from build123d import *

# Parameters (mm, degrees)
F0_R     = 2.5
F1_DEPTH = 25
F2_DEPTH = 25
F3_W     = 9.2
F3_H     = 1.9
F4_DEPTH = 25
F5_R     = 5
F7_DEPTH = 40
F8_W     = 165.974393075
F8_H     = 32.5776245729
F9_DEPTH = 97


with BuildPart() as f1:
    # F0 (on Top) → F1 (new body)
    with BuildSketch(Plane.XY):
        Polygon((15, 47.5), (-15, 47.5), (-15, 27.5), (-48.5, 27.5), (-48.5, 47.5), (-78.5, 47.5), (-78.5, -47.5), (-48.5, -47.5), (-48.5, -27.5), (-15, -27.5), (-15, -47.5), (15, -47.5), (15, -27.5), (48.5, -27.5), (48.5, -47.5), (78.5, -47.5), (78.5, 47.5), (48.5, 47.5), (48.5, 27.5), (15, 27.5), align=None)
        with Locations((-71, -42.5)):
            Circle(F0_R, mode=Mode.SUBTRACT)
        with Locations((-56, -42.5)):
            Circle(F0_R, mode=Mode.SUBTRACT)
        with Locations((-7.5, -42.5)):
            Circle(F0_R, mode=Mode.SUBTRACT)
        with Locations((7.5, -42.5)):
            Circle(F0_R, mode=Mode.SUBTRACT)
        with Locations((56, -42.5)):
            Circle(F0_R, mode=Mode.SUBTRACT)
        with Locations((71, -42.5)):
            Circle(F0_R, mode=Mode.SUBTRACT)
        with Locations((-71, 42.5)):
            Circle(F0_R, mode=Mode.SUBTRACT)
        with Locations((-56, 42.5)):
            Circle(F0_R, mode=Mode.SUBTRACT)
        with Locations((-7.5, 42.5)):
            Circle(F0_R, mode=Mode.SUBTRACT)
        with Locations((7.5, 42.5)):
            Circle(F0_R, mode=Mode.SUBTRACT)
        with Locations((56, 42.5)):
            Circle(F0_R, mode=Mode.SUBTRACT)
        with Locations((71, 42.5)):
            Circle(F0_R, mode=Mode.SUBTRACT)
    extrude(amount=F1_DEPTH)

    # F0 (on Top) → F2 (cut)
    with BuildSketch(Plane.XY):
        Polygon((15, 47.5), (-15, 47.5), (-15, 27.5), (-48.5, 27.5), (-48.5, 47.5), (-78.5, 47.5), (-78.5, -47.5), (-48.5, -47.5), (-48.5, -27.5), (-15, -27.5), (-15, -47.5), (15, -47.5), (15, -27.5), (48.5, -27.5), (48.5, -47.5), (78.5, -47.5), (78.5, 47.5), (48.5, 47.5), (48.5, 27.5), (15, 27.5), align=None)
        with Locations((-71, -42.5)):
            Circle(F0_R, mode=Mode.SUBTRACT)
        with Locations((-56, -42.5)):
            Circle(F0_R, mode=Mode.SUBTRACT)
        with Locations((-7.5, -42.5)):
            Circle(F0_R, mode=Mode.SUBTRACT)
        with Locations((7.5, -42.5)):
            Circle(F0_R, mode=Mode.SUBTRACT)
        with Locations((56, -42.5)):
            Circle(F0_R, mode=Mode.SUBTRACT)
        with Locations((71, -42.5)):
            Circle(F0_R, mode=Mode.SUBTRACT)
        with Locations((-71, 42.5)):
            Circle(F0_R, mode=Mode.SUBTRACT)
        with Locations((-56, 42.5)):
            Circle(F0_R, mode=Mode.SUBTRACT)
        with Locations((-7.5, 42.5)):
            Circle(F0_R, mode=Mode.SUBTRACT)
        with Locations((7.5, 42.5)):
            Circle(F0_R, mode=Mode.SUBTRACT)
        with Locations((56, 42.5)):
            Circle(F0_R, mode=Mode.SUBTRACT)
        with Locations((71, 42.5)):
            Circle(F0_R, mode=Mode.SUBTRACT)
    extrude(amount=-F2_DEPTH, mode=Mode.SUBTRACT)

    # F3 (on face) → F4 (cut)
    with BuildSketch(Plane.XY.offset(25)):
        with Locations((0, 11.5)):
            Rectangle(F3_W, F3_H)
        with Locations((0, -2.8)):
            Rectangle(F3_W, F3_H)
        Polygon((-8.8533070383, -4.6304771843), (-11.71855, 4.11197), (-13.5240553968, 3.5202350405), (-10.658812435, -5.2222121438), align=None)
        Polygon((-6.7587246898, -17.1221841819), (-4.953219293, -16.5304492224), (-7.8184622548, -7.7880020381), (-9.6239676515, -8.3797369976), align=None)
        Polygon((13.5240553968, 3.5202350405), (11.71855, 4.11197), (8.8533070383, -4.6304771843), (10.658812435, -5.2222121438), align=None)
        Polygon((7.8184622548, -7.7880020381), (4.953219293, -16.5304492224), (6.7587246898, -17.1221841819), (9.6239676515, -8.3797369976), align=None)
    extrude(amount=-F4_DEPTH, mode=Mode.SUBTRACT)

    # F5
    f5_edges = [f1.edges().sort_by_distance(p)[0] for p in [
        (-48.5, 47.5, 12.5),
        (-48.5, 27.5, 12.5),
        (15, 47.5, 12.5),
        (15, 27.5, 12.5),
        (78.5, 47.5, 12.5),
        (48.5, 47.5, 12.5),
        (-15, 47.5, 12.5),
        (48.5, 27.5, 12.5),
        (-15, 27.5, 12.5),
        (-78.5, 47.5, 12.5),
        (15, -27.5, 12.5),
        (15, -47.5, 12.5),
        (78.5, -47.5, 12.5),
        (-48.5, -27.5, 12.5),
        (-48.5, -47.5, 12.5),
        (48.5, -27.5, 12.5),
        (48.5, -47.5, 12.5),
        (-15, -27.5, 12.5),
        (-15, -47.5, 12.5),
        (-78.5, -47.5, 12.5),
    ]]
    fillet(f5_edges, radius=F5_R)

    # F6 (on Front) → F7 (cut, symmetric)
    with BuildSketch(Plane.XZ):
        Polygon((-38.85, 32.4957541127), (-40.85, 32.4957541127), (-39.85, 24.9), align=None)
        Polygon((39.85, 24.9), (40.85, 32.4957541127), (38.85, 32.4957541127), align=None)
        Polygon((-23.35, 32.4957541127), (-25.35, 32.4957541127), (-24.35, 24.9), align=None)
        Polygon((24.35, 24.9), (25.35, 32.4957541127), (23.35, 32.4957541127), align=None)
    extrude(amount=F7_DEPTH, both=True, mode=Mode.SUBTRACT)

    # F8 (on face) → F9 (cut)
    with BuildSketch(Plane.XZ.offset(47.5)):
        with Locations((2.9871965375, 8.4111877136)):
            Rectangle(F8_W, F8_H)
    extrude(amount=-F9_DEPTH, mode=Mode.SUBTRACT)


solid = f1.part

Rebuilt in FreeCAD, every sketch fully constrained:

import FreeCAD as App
import Part
import Sketcher
from FreeCAD import Vector
Q = App.Units.Quantity


def edges_at(feature, points):
    """Names of the edges that pass closest to the given points."""
    edges = feature.Shape.Edges
    near = lambda p: min(range(len(edges)), key=lambda i: edges[i].distToShape(Part.Vertex(*p))[0])
    return sorted({f"Edge{near(p) + 1}" for p in points})

doc = App.newDocument("Part")
body = doc.addObject("PartDesign::Body", "Body")

# Sketch on XY plane
sketch1 = body.newObject("Sketcher::SketchObject", "Sketch")
sketch1.AttachmentSupport = (doc.getObject("XY_Plane"), [""])
sketch1.MapMode = "FlatFace"
sketch1.addGeometry(Part.LineSegment(Vector(15, 47.5, 0), Vector(-15, 47.5, 0)), False)
sketch1.addGeometry(Part.LineSegment(Vector(-15, 47.5, 0), Vector(-15, 27.5, 0)), False)
sketch1.addGeometry(Part.LineSegment(Vector(-15, 27.5, 0), Vector(-48.5, 27.5, 0)), False)
sketch1.addGeometry(Part.LineSegment(Vector(-48.5, 27.5, 0), Vector(-48.5, 47.5, 0)), False)
sketch1.addGeometry(Part.LineSegment(Vector(-48.5, 47.5, 0), Vector(-78.5, 47.5, 0)), False)
sketch1.addGeometry(Part.LineSegment(Vector(-78.5, 47.5, 0), Vector(-78.5, -47.5, 0)), False)
sketch1.addGeometry(Part.LineSegment(Vector(-78.5, -47.5, 0), Vector(-48.5, -47.5, 0)), False)
sketch1.addGeometry(Part.LineSegment(Vector(-48.5, -47.5, 0), Vector(-48.5, -27.5, 0)), False)
sketch1.addGeometry(Part.LineSegment(Vector(-48.5, -27.5, 0), Vector(-15, -27.5, 0)), False)
sketch1.addGeometry(Part.LineSegment(Vector(-15, -27.5, 0), Vector(-15, -47.5, 0)), False)
sketch1.addGeometry(Part.LineSegment(Vector(-15, -47.5, 0), Vector(15, -47.5, 0)), False)
sketch1.addGeometry(Part.LineSegment(Vector(15, -47.5, 0), Vector(15, -27.5, 0)), False)
sketch1.addGeometry(Part.LineSegment(Vector(15, -27.5, 0), Vector(48.5, -27.5, 0)), False)
sketch1.addGeometry(Part.LineSegment(Vector(48.5, -27.5, 0), Vector(48.5, -47.5, 0)), False)
sketch1.addGeometry(Part.LineSegment(Vector(48.5, -47.5, 0), Vector(78.5, -47.5, 0)), False)
sketch1.addGeometry(Part.LineSegment(Vector(78.5, -47.5, 0), Vector(78.5, 47.5, 0)), False)
sketch1.addGeometry(Part.LineSegment(Vector(78.5, 47.5, 0), Vector(48.5, 47.5, 0)), False)
sketch1.addGeometry(Part.LineSegment(Vector(48.5, 47.5, 0), Vector(48.5, 27.5, 0)), False)
sketch1.addGeometry(Part.LineSegment(Vector(48.5, 27.5, 0), Vector(15, 27.5, 0)), False)
sketch1.addGeometry(Part.LineSegment(Vector(15, 27.5, 0), Vector(15, 47.5, 0)), False)
sketch1.addGeometry(Part.Circle(Vector(-71, -42.5, 0), Vector(0, 0, 1), 2.5), False)
sketch1.addGeometry(Part.Circle(Vector(-56, -42.5, 0), Vector(0, 0, 1), 2.5), False)
sketch1.addGeometry(Part.Circle(Vector(-7.5, -42.5, 0), Vector(0, 0, 1), 2.5), False)
sketch1.addGeometry(Part.Circle(Vector(7.5, -42.5, 0), Vector(0, 0, 1), 2.5), False)
sketch1.addGeometry(Part.Circle(Vector(56, -42.5, 0), Vector(0, 0, 1), 2.5), False)
sketch1.addGeometry(Part.Circle(Vector(71, -42.5, 0), Vector(0, 0, 1), 2.5), False)
sketch1.addGeometry(Part.Circle(Vector(-71, 42.5, 0), Vector(0, 0, 1), 2.5), False)
sketch1.addGeometry(Part.Circle(Vector(-56, 42.5, 0), Vector(0, 0, 1), 2.5), False)
sketch1.addGeometry(Part.Circle(Vector(-7.5, 42.5, 0), Vector(0, 0, 1), 2.5), False)
sketch1.addGeometry(Part.Circle(Vector(7.5, 42.5, 0), Vector(0, 0, 1), 2.5), False)
sketch1.addGeometry(Part.Circle(Vector(56, 42.5, 0), Vector(0, 0, 1), 2.5), False)
sketch1.addGeometry(Part.Circle(Vector(71, 42.5, 0), Vector(0, 0, 1), 2.5), False)
sketch1.addConstraint(Sketcher.Constraint("Coincident", 0, 2, 1, 1))
sketch1.addConstraint(Sketcher.Constraint("Coincident", 1, 2, 2, 1))
sketch1.addConstraint(Sketcher.Constraint("Coincident", 2, 2, 3, 1))
sketch1.addConstraint(Sketcher.Constraint("Coincident", 3, 2, 4, 1))
sketch1.addConstraint(Sketcher.Constraint("Coincident", 4, 2, 5, 1))
sketch1.addConstraint(Sketcher.Constraint("Coincident", 5, 2, 6, 1))
sketch1.addConstraint(Sketcher.Constraint("Coincident", 6, 2, 7, 1))
sketch1.addConstraint(Sketcher.Constraint("Coincident", 7, 2, 8, 1))
sketch1.addConstraint(Sketcher.Constraint("Coincident", 8, 2, 9, 1))
sketch1.addConstraint(Sketcher.Constraint("Coincident", 9, 2, 10, 1))
sketch1.addConstraint(Sketcher.Constraint("Coincident", 10, 2, 11, 1))
sketch1.addConstraint(Sketcher.Constraint("Coincident", 11, 2, 12, 1))
sketch1.addConstraint(Sketcher.Constraint("Coincident", 12, 2, 13, 1))
sketch1.addConstraint(Sketcher.Constraint("Coincident", 13, 2, 14, 1))
sketch1.addConstraint(Sketcher.Constraint("Coincident", 14, 2, 15, 1))
sketch1.addConstraint(Sketcher.Constraint("Coincident", 15, 2, 16, 1))
sketch1.addConstraint(Sketcher.Constraint("Coincident", 16, 2, 17, 1))
sketch1.addConstraint(Sketcher.Constraint("Coincident", 17, 2, 18, 1))
sketch1.addConstraint(Sketcher.Constraint("Coincident", 18, 2, 19, 1))
sketch1.addConstraint(Sketcher.Constraint("Coincident", 19, 2, 0, 1))
sketch1.addConstraint(Sketcher.Constraint("Horizontal", 0))
sketch1.addConstraint(Sketcher.Constraint("Vertical", 1))
sketch1.addConstraint(Sketcher.Constraint("Horizontal", 2))
sketch1.addConstraint(Sketcher.Constraint("Vertical", 3))
sketch1.addConstraint(Sketcher.Constraint("Horizontal", 4))
sketch1.addConstraint(Sketcher.Constraint("Vertical", 5))
sketch1.addConstraint(Sketcher.Constraint("Horizontal", 6))
sketch1.addConstraint(Sketcher.Constraint("Vertical", 7))
sketch1.addConstraint(Sketcher.Constraint("Horizontal", 8))
sketch1.addConstraint(Sketcher.Constraint("Vertical", 9))
sketch1.addConstraint(Sketcher.Constraint("Horizontal", 10))
sketch1.addConstraint(Sketcher.Constraint("Vertical", 11))
sketch1.addConstraint(Sketcher.Constraint("Horizontal", 12))
sketch1.addConstraint(Sketcher.Constraint("Vertical", 13))
sketch1.addConstraint(Sketcher.Constraint("Horizontal", 14))
sketch1.addConstraint(Sketcher.Constraint("Vertical", 15))
sketch1.addConstraint(Sketcher.Constraint("Horizontal", 16))
sketch1.addConstraint(Sketcher.Constraint("Vertical", 17))
sketch1.addConstraint(Sketcher.Constraint("Horizontal", 18))
sketch1.addConstraint(Sketcher.Constraint("Vertical", 19))
sketch1.addConstraint(Sketcher.Constraint("Equal", 20, 21))
sketch1.addConstraint(Sketcher.Constraint("Equal", 21, 22))
sketch1.addConstraint(Sketcher.Constraint("Equal", 22, 23))
sketch1.addConstraint(Sketcher.Constraint("Equal", 23, 24))
sketch1.addConstraint(Sketcher.Constraint("Equal", 24, 25))
sketch1.addConstraint(Sketcher.Constraint("Equal", 25, 26))
sketch1.addConstraint(Sketcher.Constraint("Equal", 26, 27))
sketch1.addConstraint(Sketcher.Constraint("Equal", 27, 28))
sketch1.addConstraint(Sketcher.Constraint("Equal", 28, 29))
sketch1.addConstraint(Sketcher.Constraint("Equal", 29, 30))
sketch1.addConstraint(Sketcher.Constraint("Equal", 30, 31))
sketch1.addConstraint(Sketcher.Constraint("Symmetric", 25, 3, 26, 3, -1, 1))
sketch1.addConstraint(Sketcher.Constraint("Symmetric", 24, 3, 27, 3, -1, 1))
sketch1.addConstraint(Sketcher.Constraint("Symmetric", 23, 3, 28, 3, -1, 1))
sketch1.addConstraint(Sketcher.Constraint("Symmetric", 22, 3, 29, 3, -1, 1))
sketch1.addConstraint(Sketcher.Constraint("Symmetric", 21, 3, 30, 3, -1, 1))
sketch1.addConstraint(Sketcher.Constraint("Symmetric", 20, 3, 31, 3, -1, 1))
sketch1.addConstraint(Sketcher.Constraint("Symmetric", 0, 2, 10, 2, -1, 1))
sketch1.addConstraint(Sketcher.Constraint("Symmetric", 2, 2, 12, 2, -1, 1))
sketch1.addConstraint(Sketcher.Constraint("Symmetric", 4, 2, 14, 2, -1, 1))
sketch1.addConstraint(Sketcher.Constraint("Symmetric", 6, 2, 16, 2, -1, 1))
sketch1.addConstraint(Sketcher.Constraint("Symmetric", 8, 2, 18, 2, -1, 1))
sketch1.addConstraint(Sketcher.Constraint("Symmetric", 22, 3, 23, 3, -2))
sketch1.addConstraint(Sketcher.Constraint("Symmetric", 21, 3, 24, 3, -2))
sketch1.addConstraint(Sketcher.Constraint("Symmetric", 20, 3, 25, 3, -2))
sketch1.addConstraint(Sketcher.Constraint("Symmetric", 8, 2, 11, 2, -2))
sketch1.addConstraint(Sketcher.Constraint("Symmetric", 6, 2, 13, 2, -2))
sketch1.addConstraint(Sketcher.Constraint("Horizontal", 20, 3, 21, 3))
sketch1.addConstraint(Sketcher.Constraint("Horizontal", 21, 3, 22, 3))
sketch1.addConstraint(Sketcher.Constraint("Horizontal", 0, 2, 3, 2))
sketch1.addConstraint(Sketcher.Constraint("Equal", 0, 4))
sketch1.addConstraint(Sketcher.Constraint("Diameter", 20, 5.0))
sketch1.addConstraint(Sketcher.Constraint("DistanceX", 0, 2, 0, 1, 30.0))
sketch1.addConstraint(Sketcher.Constraint("DistanceY", 1, 2, 1, 1, 20.0))
sketch1.addConstraint(Sketcher.Constraint("DistanceY", 5, 2, 5, 1, 95.0))
sketch1.addConstraint(Sketcher.Constraint("DistanceX", 2, 2, 2, 1, 33.5))
sketch1.addConstraint(Sketcher.Constraint("DistanceX", 20, 3, -1, 1, 71.0))
sketch1.addConstraint(Sketcher.Constraint("DistanceX", 21, 3, -1, 1, 56.0))
sketch1.addConstraint(Sketcher.Constraint("DistanceX", 22, 3, 23, 3, 15.0))
sketch1.addConstraint(Sketcher.Constraint("DistanceY", 20, 3, 26, 3, 85.0))
pad1 = body.newObject("PartDesign::Pad", "Pad")
pad1.Profile = sketch1
pad1.Length = 25

# Sketch on XY plane
sketch2 = body.newObject("Sketcher::SketchObject", "Sketch001")
sketch2.AttachmentSupport = (doc.getObject("XY_Plane"), [""])
sketch2.MapMode = "FlatFace"
sketch2.addGeometry(Part.LineSegment(Vector(15, 47.5, 0), Vector(-15, 47.5, 0)), False)
sketch2.addGeometry(Part.LineSegment(Vector(-15, 47.5, 0), Vector(-15, 27.5, 0)), False)
sketch2.addGeometry(Part.LineSegment(Vector(-15, 27.5, 0), Vector(-48.5, 27.5, 0)), False)
sketch2.addGeometry(Part.LineSegment(Vector(-48.5, 27.5, 0), Vector(-48.5, 47.5, 0)), False)
sketch2.addGeometry(Part.LineSegment(Vector(-48.5, 47.5, 0), Vector(-78.5, 47.5, 0)), False)
sketch2.addGeometry(Part.LineSegment(Vector(-78.5, 47.5, 0), Vector(-78.5, -47.5, 0)), False)
sketch2.addGeometry(Part.LineSegment(Vector(-78.5, -47.5, 0), Vector(-48.5, -47.5, 0)), False)
sketch2.addGeometry(Part.LineSegment(Vector(-48.5, -47.5, 0), Vector(-48.5, -27.5, 0)), False)
sketch2.addGeometry(Part.LineSegment(Vector(-48.5, -27.5, 0), Vector(-15, -27.5, 0)), False)
sketch2.addGeometry(Part.LineSegment(Vector(-15, -27.5, 0), Vector(-15, -47.5, 0)), False)
sketch2.addGeometry(Part.LineSegment(Vector(-15, -47.5, 0), Vector(15, -47.5, 0)), False)
sketch2.addGeometry(Part.LineSegment(Vector(15, -47.5, 0), Vector(15, -27.5, 0)), False)
sketch2.addGeometry(Part.LineSegment(Vector(15, -27.5, 0), Vector(48.5, -27.5, 0)), False)
sketch2.addGeometry(Part.LineSegment(Vector(48.5, -27.5, 0), Vector(48.5, -47.5, 0)), False)
sketch2.addGeometry(Part.LineSegment(Vector(48.5, -47.5, 0), Vector(78.5, -47.5, 0)), False)
sketch2.addGeometry(Part.LineSegment(Vector(78.5, -47.5, 0), Vector(78.5, 47.5, 0)), False)
sketch2.addGeometry(Part.LineSegment(Vector(78.5, 47.5, 0), Vector(48.5, 47.5, 0)), False)
sketch2.addGeometry(Part.LineSegment(Vector(48.5, 47.5, 0), Vector(48.5, 27.5, 0)), False)
sketch2.addGeometry(Part.LineSegment(Vector(48.5, 27.5, 0), Vector(15, 27.5, 0)), False)
sketch2.addGeometry(Part.LineSegment(Vector(15, 27.5, 0), Vector(15, 47.5, 0)), False)
sketch2.addGeometry(Part.Circle(Vector(-71, -42.5, 0), Vector(0, 0, 1), 2.5), False)
sketch2.addGeometry(Part.Circle(Vector(-56, -42.5, 0), Vector(0, 0, 1), 2.5), False)
sketch2.addGeometry(Part.Circle(Vector(-7.5, -42.5, 0), Vector(0, 0, 1), 2.5), False)
sketch2.addGeometry(Part.Circle(Vector(7.5, -42.5, 0), Vector(0, 0, 1), 2.5), False)
sketch2.addGeometry(Part.Circle(Vector(56, -42.5, 0), Vector(0, 0, 1), 2.5), False)
sketch2.addGeometry(Part.Circle(Vector(71, -42.5, 0), Vector(0, 0, 1), 2.5), False)
sketch2.addGeometry(Part.Circle(Vector(-71, 42.5, 0), Vector(0, 0, 1), 2.5), False)
sketch2.addGeometry(Part.Circle(Vector(-56, 42.5, 0), Vector(0, 0, 1), 2.5), False)
sketch2.addGeometry(Part.Circle(Vector(-7.5, 42.5, 0), Vector(0, 0, 1), 2.5), False)
sketch2.addGeometry(Part.Circle(Vector(7.5, 42.5, 0), Vector(0, 0, 1), 2.5), False)
sketch2.addGeometry(Part.Circle(Vector(56, 42.5, 0), Vector(0, 0, 1), 2.5), False)
sketch2.addGeometry(Part.Circle(Vector(71, 42.5, 0), Vector(0, 0, 1), 2.5), False)
sketch2.addConstraint(Sketcher.Constraint("Coincident", 0, 2, 1, 1))
sketch2.addConstraint(Sketcher.Constraint("Coincident", 1, 2, 2, 1))
sketch2.addConstraint(Sketcher.Constraint("Coincident", 2, 2, 3, 1))
sketch2.addConstraint(Sketcher.Constraint("Coincident", 3, 2, 4, 1))
sketch2.addConstraint(Sketcher.Constraint("Coincident", 4, 2, 5, 1))
sketch2.addConstraint(Sketcher.Constraint("Coincident", 5, 2, 6, 1))
sketch2.addConstraint(Sketcher.Constraint("Coincident", 6, 2, 7, 1))
sketch2.addConstraint(Sketcher.Constraint("Coincident", 7, 2, 8, 1))
sketch2.addConstraint(Sketcher.Constraint("Coincident", 8, 2, 9, 1))
sketch2.addConstraint(Sketcher.Constraint("Coincident", 9, 2, 10, 1))
sketch2.addConstraint(Sketcher.Constraint("Coincident", 10, 2, 11, 1))
sketch2.addConstraint(Sketcher.Constraint("Coincident", 11, 2, 12, 1))
sketch2.addConstraint(Sketcher.Constraint("Coincident", 12, 2, 13, 1))
sketch2.addConstraint(Sketcher.Constraint("Coincident", 13, 2, 14, 1))
sketch2.addConstraint(Sketcher.Constraint("Coincident", 14, 2, 15, 1))
sketch2.addConstraint(Sketcher.Constraint("Coincident", 15, 2, 16, 1))
sketch2.addConstraint(Sketcher.Constraint("Coincident", 16, 2, 17, 1))
sketch2.addConstraint(Sketcher.Constraint("Coincident", 17, 2, 18, 1))
sketch2.addConstraint(Sketcher.Constraint("Coincident", 18, 2, 19, 1))
sketch2.addConstraint(Sketcher.Constraint("Coincident", 19, 2, 0, 1))
sketch2.addConstraint(Sketcher.Constraint("Horizontal", 0))
sketch2.addConstraint(Sketcher.Constraint("Vertical", 1))
sketch2.addConstraint(Sketcher.Constraint("Horizontal", 2))
sketch2.addConstraint(Sketcher.Constraint("Vertical", 3))
sketch2.addConstraint(Sketcher.Constraint("Horizontal", 4))
sketch2.addConstraint(Sketcher.Constraint("Vertical", 5))
sketch2.addConstraint(Sketcher.Constraint("Horizontal", 6))
sketch2.addConstraint(Sketcher.Constraint("Vertical", 7))
sketch2.addConstraint(Sketcher.Constraint("Horizontal", 8))
sketch2.addConstraint(Sketcher.Constraint("Vertical", 9))
sketch2.addConstraint(Sketcher.Constraint("Horizontal", 10))
sketch2.addConstraint(Sketcher.Constraint("Vertical", 11))
sketch2.addConstraint(Sketcher.Constraint("Horizontal", 12))
sketch2.addConstraint(Sketcher.Constraint("Vertical", 13))
sketch2.addConstraint(Sketcher.Constraint("Horizontal", 14))
sketch2.addConstraint(Sketcher.Constraint("Vertical", 15))
sketch2.addConstraint(Sketcher.Constraint("Horizontal", 16))
sketch2.addConstraint(Sketcher.Constraint("Vertical", 17))
sketch2.addConstraint(Sketcher.Constraint("Horizontal", 18))
sketch2.addConstraint(Sketcher.Constraint("Vertical", 19))
sketch2.addConstraint(Sketcher.Constraint("Equal", 20, 21))
sketch2.addConstraint(Sketcher.Constraint("Equal", 21, 22))
sketch2.addConstraint(Sketcher.Constraint("Equal", 22, 23))
sketch2.addConstraint(Sketcher.Constraint("Equal", 23, 24))
sketch2.addConstraint(Sketcher.Constraint("Equal", 24, 25))
sketch2.addConstraint(Sketcher.Constraint("Equal", 25, 26))
sketch2.addConstraint(Sketcher.Constraint("Equal", 26, 27))
sketch2.addConstraint(Sketcher.Constraint("Equal", 27, 28))
sketch2.addConstraint(Sketcher.Constraint("Equal", 28, 29))
sketch2.addConstraint(Sketcher.Constraint("Equal", 29, 30))
sketch2.addConstraint(Sketcher.Constraint("Equal", 30, 31))
sketch2.addConstraint(Sketcher.Constraint("Symmetric", 25, 3, 26, 3, -1, 1))
sketch2.addConstraint(Sketcher.Constraint("Symmetric", 24, 3, 27, 3, -1, 1))
sketch2.addConstraint(Sketcher.Constraint("Symmetric", 23, 3, 28, 3, -1, 1))
sketch2.addConstraint(Sketcher.Constraint("Symmetric", 22, 3, 29, 3, -1, 1))
sketch2.addConstraint(Sketcher.Constraint("Symmetric", 21, 3, 30, 3, -1, 1))
sketch2.addConstraint(Sketcher.Constraint("Symmetric", 20, 3, 31, 3, -1, 1))
sketch2.addConstraint(Sketcher.Constraint("Symmetric", 0, 2, 10, 2, -1, 1))
sketch2.addConstraint(Sketcher.Constraint("Symmetric", 2, 2, 12, 2, -1, 1))
sketch2.addConstraint(Sketcher.Constraint("Symmetric", 4, 2, 14, 2, -1, 1))
sketch2.addConstraint(Sketcher.Constraint("Symmetric", 6, 2, 16, 2, -1, 1))
sketch2.addConstraint(Sketcher.Constraint("Symmetric", 8, 2, 18, 2, -1, 1))
sketch2.addConstraint(Sketcher.Constraint("Symmetric", 22, 3, 23, 3, -2))
sketch2.addConstraint(Sketcher.Constraint("Symmetric", 21, 3, 24, 3, -2))
sketch2.addConstraint(Sketcher.Constraint("Symmetric", 20, 3, 25, 3, -2))
sketch2.addConstraint(Sketcher.Constraint("Symmetric", 8, 2, 11, 2, -2))
sketch2.addConstraint(Sketcher.Constraint("Symmetric", 6, 2, 13, 2, -2))
sketch2.addConstraint(Sketcher.Constraint("Horizontal", 20, 3, 21, 3))
sketch2.addConstraint(Sketcher.Constraint("Horizontal", 21, 3, 22, 3))
sketch2.addConstraint(Sketcher.Constraint("Horizontal", 0, 2, 3, 2))
sketch2.addConstraint(Sketcher.Constraint("Equal", 0, 4))
sketch2.addConstraint(Sketcher.Constraint("Diameter", 20, 5.0))
sketch2.addConstraint(Sketcher.Constraint("DistanceX", 0, 2, 0, 1, 30.0))
sketch2.addConstraint(Sketcher.Constraint("DistanceY", 1, 2, 1, 1, 20.0))
sketch2.addConstraint(Sketcher.Constraint("DistanceY", 5, 2, 5, 1, 95.0))
sketch2.addConstraint(Sketcher.Constraint("DistanceX", 2, 2, 2, 1, 33.5))
sketch2.addConstraint(Sketcher.Constraint("DistanceX", 20, 3, -1, 1, 71.0))
sketch2.addConstraint(Sketcher.Constraint("DistanceX", 21, 3, -1, 1, 56.0))
sketch2.addConstraint(Sketcher.Constraint("DistanceX", 22, 3, 23, 3, 15.0))
sketch2.addConstraint(Sketcher.Constraint("DistanceY", 20, 3, 26, 3, 85.0))
pocket1 = body.newObject("PartDesign::Pocket", "Pocket")
pocket1.Profile = sketch2
pocket1.Length = 25

# Sketch on XY plane
sketch3 = body.newObject("Sketcher::SketchObject", "Sketch002")
sketch3.AttachmentSupport = (doc.getObject("XY_Plane"), [""])
sketch3.MapMode = "FlatFace"
sketch3.AttachmentOffset = App.Placement(Vector(0, 0, 25), App.Rotation())
sketch3.addGeometry(Part.LineSegment(Vector(-4.6, 12.4, 0), Vector(-4.6, 10.6, 0)), False)
sketch3.addGeometry(Part.LineSegment(Vector(-4.6, 10.6, 0), Vector(4.6, 10.6, 0)), False)
sketch3.addGeometry(Part.LineSegment(Vector(4.6, 10.6, 0), Vector(4.6, 12.4, 0)), False)
sketch3.addGeometry(Part.LineSegment(Vector(4.6, 12.4, 0), Vector(-4.6, 12.4, 0)), False)
sketch3.addGeometry(Part.LineSegment(Vector(-4.6, -1.9, 0), Vector(-4.6, -3.8, 0)), False)
sketch3.addGeometry(Part.LineSegment(Vector(-4.6, -3.8, 0), Vector(4.6, -3.8, 0)), False)
sketch3.addGeometry(Part.LineSegment(Vector(4.6, -3.8, 0), Vector(4.6, -1.9, 0)), False)
sketch3.addGeometry(Part.LineSegment(Vector(4.6, -1.9, 0), Vector(-4.6, -1.9, 0)), False)
sketch3.addGeometry(Part.LineSegment(Vector(-8.9, -4.6, 0), Vector(-11.7, 4.1, 0)), False)
sketch3.addGeometry(Part.LineSegment(Vector(-11.7, 4.1, 0), Vector(-13.5, 3.5, 0)), False)
sketch3.addGeometry(Part.LineSegment(Vector(-13.5, 3.5, 0), Vector(-10.7, -5.2, 0)), False)
sketch3.addGeometry(Part.LineSegment(Vector(-10.7, -5.2, 0), Vector(-8.9, -4.6, 0)), False)
sketch3.addGeometry(Part.LineSegment(Vector(-6.8, -17.1, 0), Vector(-5, -16.5, 0)), False)
sketch3.addGeometry(Part.LineSegment(Vector(-5, -16.5, 0), Vector(-7.8, -7.8, 0)), False)
sketch3.addGeometry(Part.LineSegment(Vector(-7.8, -7.8, 0), Vector(-9.6, -8.4, 0)), False)
sketch3.addGeometry(Part.LineSegment(Vector(-9.6, -8.4, 0), Vector(-6.8, -17.1, 0)), False)
sketch3.addGeometry(Part.LineSegment(Vector(13.5, 3.5, 0), Vector(11.7, 4.1, 0)), False)
sketch3.addGeometry(Part.LineSegment(Vector(11.7, 4.1, 0), Vector(8.9, -4.6, 0)), False)
sketch3.addGeometry(Part.LineSegment(Vector(8.9, -4.6, 0), Vector(10.7, -5.2, 0)), False)
sketch3.addGeometry(Part.LineSegment(Vector(10.7, -5.2, 0), Vector(13.5, 3.5, 0)), False)
sketch3.addGeometry(Part.LineSegment(Vector(7.8, -7.8, 0), Vector(5, -16.5, 0)), False)
sketch3.addGeometry(Part.LineSegment(Vector(5, -16.5, 0), Vector(6.8, -17.1, 0)), False)
sketch3.addGeometry(Part.LineSegment(Vector(6.8, -17.1, 0), Vector(9.6, -8.4, 0)), False)
sketch3.addGeometry(Part.LineSegment(Vector(9.6, -8.4, 0), Vector(7.8, -7.8, 0)), False)
sketch3.addConstraint(Sketcher.Constraint("Coincident", 0, 2, 1, 1))
sketch3.addConstraint(Sketcher.Constraint("Coincident", 1, 2, 2, 1))
sketch3.addConstraint(Sketcher.Constraint("Coincident", 2, 2, 3, 1))
sketch3.addConstraint(Sketcher.Constraint("Coincident", 3, 2, 0, 1))
sketch3.addConstraint(Sketcher.Constraint("Coincident", 4, 2, 5, 1))
sketch3.addConstraint(Sketcher.Constraint("Coincident", 5, 2, 6, 1))
sketch3.addConstraint(Sketcher.Constraint("Coincident", 6, 2, 7, 1))
sketch3.addConstraint(Sketcher.Constraint("Coincident", 7, 2, 4, 1))
sketch3.addConstraint(Sketcher.Constraint("Coincident", 8, 2, 9, 1))
sketch3.addConstraint(Sketcher.Constraint("Coincident", 9, 2, 10, 1))
sketch3.addConstraint(Sketcher.Constraint("Coincident", 10, 2, 11, 1))
sketch3.addConstraint(Sketcher.Constraint("Coincident", 11, 2, 8, 1))
sketch3.addConstraint(Sketcher.Constraint("Coincident", 12, 2, 13, 1))
sketch3.addConstraint(Sketcher.Constraint("Coincident", 13, 2, 14, 1))
sketch3.addConstraint(Sketcher.Constraint("Coincident", 14, 2, 15, 1))
sketch3.addConstraint(Sketcher.Constraint("Coincident", 15, 2, 12, 1))
sketch3.addConstraint(Sketcher.Constraint("Coincident", 16, 2, 17, 1))
sketch3.addConstraint(Sketcher.Constraint("Coincident", 17, 2, 18, 1))
sketch3.addConstraint(Sketcher.Constraint("Coincident", 18, 2, 19, 1))
sketch3.addConstraint(Sketcher.Constraint("Coincident", 19, 2, 16, 1))
sketch3.addConstraint(Sketcher.Constraint("Coincident", 20, 2, 21, 1))
sketch3.addConstraint(Sketcher.Constraint("Coincident", 21, 2, 22, 1))
sketch3.addConstraint(Sketcher.Constraint("Coincident", 22, 2, 23, 1))
sketch3.addConstraint(Sketcher.Constraint("Coincident", 23, 2, 20, 1))
sketch3.addConstraint(Sketcher.Constraint("Vertical", 0))
sketch3.addConstraint(Sketcher.Constraint("Horizontal", 1))
sketch3.addConstraint(Sketcher.Constraint("Vertical", 2))
sketch3.addConstraint(Sketcher.Constraint("Horizontal", 3))
sketch3.addConstraint(Sketcher.Constraint("Vertical", 4))
sketch3.addConstraint(Sketcher.Constraint("Horizontal", 5))
sketch3.addConstraint(Sketcher.Constraint("Vertical", 6))
sketch3.addConstraint(Sketcher.Constraint("Horizontal", 7))
sketch3.addConstraint(Sketcher.Constraint("Symmetric", 8, 2, 16, 2, -2))
sketch3.addConstraint(Sketcher.Constraint("Symmetric", 11, 2, 17, 2, -2))
sketch3.addConstraint(Sketcher.Constraint("Symmetric", 10, 2, 18, 2, -2))
sketch3.addConstraint(Sketcher.Constraint("Symmetric", 9, 2, 19, 2, -2))
sketch3.addConstraint(Sketcher.Constraint("Symmetric", 12, 2, 20, 2, -2))
sketch3.addConstraint(Sketcher.Constraint("Symmetric", 15, 2, 21, 2, -2))
sketch3.addConstraint(Sketcher.Constraint("Symmetric", 14, 2, 22, 2, -2))
sketch3.addConstraint(Sketcher.Constraint("Symmetric", 13, 2, 23, 2, -2))
sketch3.addConstraint(Sketcher.Constraint("Perpendicular", 8, 9))
sketch3.addConstraint(Sketcher.Constraint("Perpendicular", 9, 10))
sketch3.addConstraint(Sketcher.Constraint("Perpendicular", 10, 11))
sketch3.addConstraint(Sketcher.Constraint("Parallel", 11, 12))
sketch3.addConstraint(Sketcher.Constraint("Perpendicular", 12, 13))
sketch3.addConstraint(Sketcher.Constraint("Perpendicular", 13, 14))
sketch3.addConstraint(Sketcher.Constraint("Perpendicular", 14, 15))
sketch3.addConstraint(Sketcher.Constraint("Vertical", 3, 2, 4, 2))
sketch3.addConstraint(Sketcher.Constraint("Vertical", 2, 2, 5, 2))
sketch3.addConstraint(Sketcher.Constraint("Equal", 2, 4))
sketch3.addConstraint(Sketcher.Constraint("Equal", 11, 12))
sketch3.addConstraint(Sketcher.Constraint("Equal", 10, 13))
sketch3.addConstraint(Sketcher.Constraint("DistanceX", 1, 1, 1, 2, 9.2))
sketch3.addConstraint(Sketcher.Constraint("DistanceY", 0, 2, 0, 1, 1.9))
sketch3.addConstraint(Sketcher.Constraint("Distance", 8, 9.2))
sketch3.addConstraint(Sketcher.Constraint("Distance", 9, 1.9))
sketch3.addConstraint(Sketcher.Constraint("DistanceX", 0, 2, -1, 1, 4.6))
sketch3.addConstraint(Sketcher.Constraint("DistanceY", 4, 2, 0, 2, 14.3))
sketch3.addConstraint(Sketcher.Constraint("DistanceY", -1, 1, 0, 2, 10.55))
sketch3.addConstraint(Sketcher.Constraint("DistanceX", 8, 2, -1, 1, 11.71855))
sketch3.addConstraint(Sketcher.Constraint("DistanceY", -1, 1, 8, 2, 4.11197))
sketch3.addConstraint(Sketcher.Constraint("DistanceX", 12, 2, -1, 1, 4.953219))
sketch3.addConstraint(Sketcher.Constraint("DistanceY", 12, 2, -1, 1, 16.530449))
sketch3.addConstraint(Sketcher.Constraint("DistanceX", 9, 2, 11, 2, 4.670748))
pocket2 = body.newObject("PartDesign::Pocket", "Pocket001")
pocket2.Profile = sketch3
pocket2.Length = 25
doc.recompute()

fillet = body.newObject("PartDesign::Fillet", "Fillet")
fillet.Base = (pocket2, edges_at(pocket2, [
    (-48.5, 47.5, 12.5),
    (-48.5, 27.5, 12.5),
    (15, 47.5, 12.5),
    (15, 27.5, 12.5),
    (78.5, 47.5, 12.5),
    (48.5, 47.5, 12.5),
    (-15, 47.5, 12.5),
    (48.5, 27.5, 12.5),
    (-15, 27.5, 12.5),
    (-78.5, 47.5, 12.5),
    (15, -27.5, 12.5),
    (15, -47.5, 12.5),
    (78.5, -47.5, 12.5),
    (-48.5, -27.5, 12.5),
    (-48.5, -47.5, 12.5),
    (48.5, -27.5, 12.5),
    (48.5, -47.5, 12.5),
    (-15, -27.5, 12.5),
    (-15, -47.5, 12.5),
    (-78.5, -47.5, 12.5),
]))
fillet.Radius = 5

# Sketch on XZ plane
sketch4 = body.newObject("Sketcher::SketchObject", "Sketch003")
sketch4.AttachmentSupport = (doc.getObject("XZ_Plane"), [""])
sketch4.MapMode = "FlatFace"
sketch4.addGeometry(Part.LineSegment(Vector(-38.9, 32.5, 0), Vector(-40.9, 32.5, 0)), False)
sketch4.addGeometry(Part.LineSegment(Vector(-40.9, 32.5, 0), Vector(-39.9, 24.9, 0)), False)
sketch4.addGeometry(Part.LineSegment(Vector(-39.9, 24.9, 0), Vector(-38.9, 32.5, 0)), False)
sketch4.addGeometry(Part.LineSegment(Vector(39.9, 24.9, 0), Vector(40.9, 32.5, 0)), False)
sketch4.addGeometry(Part.LineSegment(Vector(40.9, 32.5, 0), Vector(38.9, 32.5, 0)), False)
sketch4.addGeometry(Part.LineSegment(Vector(38.9, 32.5, 0), Vector(39.9, 24.9, 0)), False)
sketch4.addGeometry(Part.LineSegment(Vector(-23.4, 32.5, 0), Vector(-25.4, 32.5, 0)), False)
sketch4.addGeometry(Part.LineSegment(Vector(-25.4, 32.5, 0), Vector(-24.4, 24.9, 0)), False)
sketch4.addGeometry(Part.LineSegment(Vector(-24.4, 24.9, 0), Vector(-23.4, 32.5, 0)), False)
sketch4.addGeometry(Part.LineSegment(Vector(24.4, 24.9, 0), Vector(25.4, 32.5, 0)), False)
sketch4.addGeometry(Part.LineSegment(Vector(25.4, 32.5, 0), Vector(23.4, 32.5, 0)), False)
sketch4.addGeometry(Part.LineSegment(Vector(23.4, 32.5, 0), Vector(24.4, 24.9, 0)), False)
sketch4.addConstraint(Sketcher.Constraint("Coincident", 0, 2, 1, 1))
sketch4.addConstraint(Sketcher.Constraint("Coincident", 1, 2, 2, 1))
sketch4.addConstraint(Sketcher.Constraint("Coincident", 2, 2, 0, 1))
sketch4.addConstraint(Sketcher.Constraint("Coincident", 3, 2, 4, 1))
sketch4.addConstraint(Sketcher.Constraint("Coincident", 4, 2, 5, 1))
sketch4.addConstraint(Sketcher.Constraint("Coincident", 5, 2, 3, 1))
sketch4.addConstraint(Sketcher.Constraint("Coincident", 6, 2, 7, 1))
sketch4.addConstraint(Sketcher.Constraint("Coincident", 7, 2, 8, 1))
sketch4.addConstraint(Sketcher.Constraint("Coincident", 8, 2, 6, 1))
sketch4.addConstraint(Sketcher.Constraint("Coincident", 9, 2, 10, 1))
sketch4.addConstraint(Sketcher.Constraint("Coincident", 10, 2, 11, 1))
sketch4.addConstraint(Sketcher.Constraint("Coincident", 11, 2, 9, 1))
sketch4.addConstraint(Sketcher.Constraint("Horizontal", 0))
sketch4.addConstraint(Sketcher.Constraint("Horizontal", 4))
sketch4.addConstraint(Sketcher.Constraint("Horizontal", 6))
sketch4.addConstraint(Sketcher.Constraint("Horizontal", 10))
sketch4.addConstraint(Sketcher.Constraint("Symmetric", 0, 2, 3, 2, -2))
sketch4.addConstraint(Sketcher.Constraint("Symmetric", 1, 2, 5, 2, -2))
sketch4.addConstraint(Sketcher.Constraint("Symmetric", 6, 2, 9, 2, -2))
sketch4.addConstraint(Sketcher.Constraint("Symmetric", 7, 2, 11, 2, -2))
sketch4.addConstraint(Sketcher.Constraint("Parallel", 2, 3))
sketch4.addConstraint(Sketcher.Constraint("Parallel", 1, 5))
sketch4.addConstraint(Sketcher.Constraint("Parallel", 5, 7))
sketch4.addConstraint(Sketcher.Constraint("Parallel", 3, 8))
sketch4.addConstraint(Sketcher.Constraint("Parallel", 7, 11))
sketch4.addConstraint(Sketcher.Constraint("Horizontal", 4, 2, 6, 2))
sketch4.addConstraint(Sketcher.Constraint("Horizontal", 5, 2, 7, 2))
sketch4.addConstraint(Sketcher.Constraint("DistanceX", 0, 2, 0, 1, 2.0))
sketch4.addConstraint(Sketcher.Constraint("Angle", 1, Q("-82.5 deg")))
sketch4.addConstraint(Sketcher.Constraint("DistanceY", -1, 1, 1, 2, 24.9))
sketch4.addConstraint(Sketcher.Constraint("DistanceX", 2, 2, 3, 2, 79.7))
sketch4.addConstraint(Sketcher.Constraint("DistanceX", 2, 2, 6, 2, 13.5))
pocket3 = body.newObject("PartDesign::Pocket", "Pocket002")
pocket3.Profile = sketch4
pocket3.Length = 80
pocket3.Midplane = True

# Sketch on XZ plane
sketch5 = body.newObject("Sketcher::SketchObject", "Sketch004")
sketch5.AttachmentSupport = (doc.getObject("XZ_Plane"), [""])
sketch5.MapMode = "FlatFace"
sketch5.AttachmentOffset = App.Placement(Vector(0, 0, 47.5), App.Rotation())
sketch5.addGeometry(Part.LineSegment(Vector(-80, 25, 0), Vector(-80, -8, 0)), False)
sketch5.addGeometry(Part.LineSegment(Vector(-80, -8, 0), Vector(86, -8, 0)), False)
sketch5.addGeometry(Part.LineSegment(Vector(86, -8, 0), Vector(86, 25, 0)), False)
sketch5.addGeometry(Part.LineSegment(Vector(86, 25, 0), Vector(-80, 25, 0)), False)
sketch5.addConstraint(Sketcher.Constraint("Coincident", 0, 2, 1, 1))
sketch5.addConstraint(Sketcher.Constraint("Coincident", 1, 2, 2, 1))
sketch5.addConstraint(Sketcher.Constraint("Coincident", 2, 2, 3, 1))
sketch5.addConstraint(Sketcher.Constraint("Coincident", 3, 2, 0, 1))
sketch5.addConstraint(Sketcher.Constraint("Vertical", 0))
sketch5.addConstraint(Sketcher.Constraint("Horizontal", 1))
sketch5.addConstraint(Sketcher.Constraint("Vertical", 2))
sketch5.addConstraint(Sketcher.Constraint("Horizontal", 3))
sketch5.addConstraint(Sketcher.Constraint("DistanceX", 0, 2, -1, 1, 80.0))
sketch5.addConstraint(Sketcher.Constraint("DistanceY", -1, 1, 2, 2, 24.7))
sketch5.addConstraint(Sketcher.Constraint("DistanceX", 1, 1, 1, 2, 165.974393))
sketch5.addConstraint(Sketcher.Constraint("DistanceY", 0, 2, 0, 1, 32.577625))
pocket4 = body.newObject("PartDesign::Pocket", "Pocket003")
pocket4.Profile = sketch5
pocket4.Length = 97

doc.recompute()
